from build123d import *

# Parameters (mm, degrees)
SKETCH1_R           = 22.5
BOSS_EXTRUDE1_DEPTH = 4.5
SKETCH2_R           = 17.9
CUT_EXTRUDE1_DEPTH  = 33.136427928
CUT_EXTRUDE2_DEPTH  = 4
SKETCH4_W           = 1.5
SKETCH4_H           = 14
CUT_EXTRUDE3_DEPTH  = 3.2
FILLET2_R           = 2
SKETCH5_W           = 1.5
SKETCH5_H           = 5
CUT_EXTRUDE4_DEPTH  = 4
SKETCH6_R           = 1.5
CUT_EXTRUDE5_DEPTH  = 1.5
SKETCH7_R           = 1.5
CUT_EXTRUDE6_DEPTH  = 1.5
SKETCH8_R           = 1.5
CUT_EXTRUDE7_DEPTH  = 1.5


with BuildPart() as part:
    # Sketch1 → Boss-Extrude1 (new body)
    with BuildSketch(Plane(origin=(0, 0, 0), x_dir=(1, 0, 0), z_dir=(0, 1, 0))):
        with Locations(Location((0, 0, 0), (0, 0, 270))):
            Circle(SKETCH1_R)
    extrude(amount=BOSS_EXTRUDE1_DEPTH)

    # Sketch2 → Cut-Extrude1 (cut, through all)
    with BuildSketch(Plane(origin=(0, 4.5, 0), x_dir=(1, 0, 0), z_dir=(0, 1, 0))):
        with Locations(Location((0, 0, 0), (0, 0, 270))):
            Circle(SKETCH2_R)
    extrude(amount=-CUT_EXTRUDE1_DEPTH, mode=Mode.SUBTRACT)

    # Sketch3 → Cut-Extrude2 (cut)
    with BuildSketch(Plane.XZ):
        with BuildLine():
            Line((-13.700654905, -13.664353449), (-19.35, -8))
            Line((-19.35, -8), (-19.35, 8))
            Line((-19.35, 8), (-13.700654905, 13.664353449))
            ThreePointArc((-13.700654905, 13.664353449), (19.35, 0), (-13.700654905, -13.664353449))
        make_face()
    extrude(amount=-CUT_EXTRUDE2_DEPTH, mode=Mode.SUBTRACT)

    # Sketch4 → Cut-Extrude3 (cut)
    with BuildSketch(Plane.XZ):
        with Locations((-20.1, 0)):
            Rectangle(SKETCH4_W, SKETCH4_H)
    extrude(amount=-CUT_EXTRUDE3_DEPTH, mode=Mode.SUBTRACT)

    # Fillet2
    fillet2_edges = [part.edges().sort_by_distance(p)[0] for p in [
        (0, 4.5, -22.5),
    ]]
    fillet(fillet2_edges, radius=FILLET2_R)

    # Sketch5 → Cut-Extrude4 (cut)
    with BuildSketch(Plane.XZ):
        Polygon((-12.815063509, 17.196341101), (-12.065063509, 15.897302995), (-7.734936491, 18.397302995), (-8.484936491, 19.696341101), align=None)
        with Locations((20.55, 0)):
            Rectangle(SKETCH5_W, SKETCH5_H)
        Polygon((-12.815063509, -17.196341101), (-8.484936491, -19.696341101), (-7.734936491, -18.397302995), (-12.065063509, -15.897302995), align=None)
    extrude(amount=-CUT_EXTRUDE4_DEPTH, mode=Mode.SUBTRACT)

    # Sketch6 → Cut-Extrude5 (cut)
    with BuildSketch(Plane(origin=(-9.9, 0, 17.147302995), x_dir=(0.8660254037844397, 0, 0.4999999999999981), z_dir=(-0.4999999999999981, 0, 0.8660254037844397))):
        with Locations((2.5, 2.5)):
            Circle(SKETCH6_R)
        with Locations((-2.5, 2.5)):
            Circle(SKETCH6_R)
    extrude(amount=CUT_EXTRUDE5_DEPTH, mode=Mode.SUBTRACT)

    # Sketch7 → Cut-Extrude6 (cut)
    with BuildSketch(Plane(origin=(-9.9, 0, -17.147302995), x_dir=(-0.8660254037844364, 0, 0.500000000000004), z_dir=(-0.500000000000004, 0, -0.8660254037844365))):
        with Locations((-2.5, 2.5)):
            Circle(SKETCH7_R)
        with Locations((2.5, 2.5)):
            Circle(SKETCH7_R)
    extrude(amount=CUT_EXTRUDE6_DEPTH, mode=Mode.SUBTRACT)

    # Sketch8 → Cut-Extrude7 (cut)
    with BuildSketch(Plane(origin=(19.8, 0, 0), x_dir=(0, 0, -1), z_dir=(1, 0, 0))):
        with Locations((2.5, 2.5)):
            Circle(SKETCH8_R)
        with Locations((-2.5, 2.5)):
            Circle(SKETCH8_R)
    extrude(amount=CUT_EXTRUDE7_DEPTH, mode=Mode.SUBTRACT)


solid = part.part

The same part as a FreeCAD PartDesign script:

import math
import FreeCAD as App
import Part
import Sketcher
Q = App.Units.Quantity


def edges_at(feature, points):
    """Names of the edges that pass closest to the given points."""
    edges = feature.Shape.Edges
    near = lambda p: min(range(len(edges)), key=lambda i: edges[i].distToShape(Part.Vertex(*p))[0])
    return sorted({f"Edge{near(p) + 1}" for p in points})


def add_polygon(sketch, points):
    """Adds a closed chain of lines whose ends are joined by coincident constraints."""
    first, n = sketch.GeometryCount, len(points)
    for a, b in zip(points, points[1:] + points[:1]):
        sketch.addGeometry(Part.LineSegment(App.Vector(*a, 0), App.Vector(*b, 0)), False)
    for i in range(n):
        sketch.addConstraint(Sketcher.Constraint("Coincident", first + i, 2, first + (i + 1) % n, 1))

doc = App.newDocument("Part")
body = doc.addObject("PartDesign::Body", "Body")

# Sketch on XZ plane
sketch1 = body.newObject("Sketcher::SketchObject", "Sketch")
sketch1.AttachmentSupport = (doc.getObject("XZ_Plane"), [""])
sketch1.MapMode = "FlatFace"
sketch1.addGeometry(Part.Circle(App.Vector(0, 0, 0), App.Vector(0, 0, 1), 22), False)
sketch1.addConstraint([
    Sketcher.Constraint("Coincident", 0, 3, -1, 1),
    Sketcher.Constraint("Diameter", 0, Q("45 mm")),
])
pad1 = body.newObject("PartDesign::Pad", "Pad")
pad1.Profile = sketch1
pad1.Length = 4.5
pad1.Reversed = True

# Sketch on XZ plane
sketch2 = body.newObject("Sketcher::SketchObject", "Sketch001")
sketch2.AttachmentSupport = (doc.getObject("XZ_Plane"), [""])
sketch2.MapMode = "FlatFace"
sketch2.AttachmentOffset = App.Placement(App.Vector(0, 0, -4.5), App.Rotation())
sketch2.addGeometry(Part.Circle(App.Vector(0, 0, 0), App.Vector(0, 0, 1), 18), False)
sketch2.addConstraint([
    Sketcher.Constraint("Coincident", 0, 3, -1, 1),
    Sketcher.Constraint("Diameter", 0, Q("35.8 mm")),
])
pocket1 = body.newObject("PartDesign::Pocket", "Pocket")
pocket1.Profile = sketch2
pocket1.Type = "ThroughAll"
pocket1.Reversed = True

# Sketch on XZ plane
sketch3 = body.newObject("Sketcher::SketchObject", "Sketch002")
sketch3.AttachmentSupport = (doc.getObject("XZ_Plane"), [""])
sketch3.MapMode = "FlatFace"
sketch3.addGeometry([
    Part.LineSegment(App.Vector(-19, -8, 0), App.Vector(-14, -14, 0)),
    Part.ArcOfCircle(Part.Circle(App.Vector(0, 0, 0), App.Vector(0, 0, 1), 19), math.radians(-135), math.radians(135)),
    Part.LineSegment(App.Vector(-14, 14, 0), App.Vector(-19, 8, 0)),
    Part.LineSegment(App.Vector(-19, 8, 0), App.Vector(-19, -8, 0)),
], False)
sketch3.addConstraint([
    Sketcher.Constraint("Tangent", 0, 2, 1, 1),
    Sketcher.Constraint("Tangent", 1, 2, 2, 1),
    Sketcher.Constraint("Coincident", 2, 2, 3, 1),
    Sketcher.Constraint("Coincident", 3, 2, 0, 1),
    Sketcher.Constraint("Vertical", 3),
    Sketcher.Constraint("Coincident", 1, 3, -1, 1),
    Sketcher.Constraint("Vertical", 0, 2, 1, 2),
    Sketcher.Constraint("DistanceY", 3, 2, 3, 1, Q("16 mm")),
    Sketcher.Constraint("Radius", 1, Q("19.35 mm")),
    Sketcher.Constraint("Distance", 0, Q("8 mm")),
])
pocket2 = body.newObject("PartDesign::Pocket", "Pocket001")
pocket2.Profile = sketch3
pocket2.Length = 4

# Sketch on XZ plane
sketch4 = body.newObject("Sketcher::SketchObject", "Sketch003")
sketch4.AttachmentSupport = (doc.getObject("XZ_Plane"), [""])
sketch4.MapMode = "FlatFace"
add_polygon(sketch4, [(-20.9, 7), (-20.9, -7), (-19.4, -7), (-19.4, 7)])  # lines 0-3
sketch4.addConstraint([
    Sketcher.Constraint("Vertical", 0),
    Sketcher.Constraint("Horizontal", 1),
    Sketcher.Constraint("Vertical", 2),
    Sketcher.Constraint("Horizontal", 3),
    Sketcher.Constraint("DistanceY", 0, 2, 0, 1, Q("14 mm")),
    Sketcher.Constraint("DistanceX", 1, 1, 1, 2, Q("1.5 mm")),
    Sketcher.Constraint("DistanceY", 0, 2, -1, 1, Q("7 mm")),
    Sketcher.Constraint("DistanceX", 0, 2, -1, 1, Q("20.85 mm")),
])
pocket3 = body.newObject("PartDesign::Pocket", "Pocket002")
pocket3.Profile = sketch4
pocket3.Length = 3.2
doc.recompute()

fillet = body.newObject("PartDesign::Fillet", "Fillet")
fillet.Base = (pocket3, edges_at(pocket3, [(0, 4.5, -22.5)]))
fillet.Radius = 2

# Sketch on XZ plane
sketch5 = body.newObject("Sketcher::SketchObject", "Sketch004")
sketch5.AttachmentSupport = (doc.getObject("XZ_Plane"), [""])
sketch5.MapMode = "FlatFace"
add_polygon(sketch5, [(-12.8, 17.2), (-12.1, 15.9), (-7.7, 18.4), (-8.5, 19.7)])  # lines 0-3
add_polygon(sketch5, [(19.8, 2.5), (19.8, -2.5), (21.3, -2.5), (21.3, 2.5)])  # lines 4-7
add_polygon(sketch5, [(-12.8, -17.2), (-8.5, -19.7), (-7.7, -18.4), (-12.1, -15.9)])  # lines 8-11
sketch5.addConstraint([
    Sketcher.Constraint("Vertical", 4),
    Sketcher.Constraint("Horizontal", 5),
    Sketcher.Constraint("Vertical", 6),
    Sketcher.Constraint("Horizontal", 7),
    Sketcher.Constraint("Symmetric", 2, 2, 8, 2, -1),
    Sketcher.Constraint("Symmetric", 1, 2, 9, 2, -1),
    Sketcher.Constraint("Symmetric", 0, 2, 10, 2, -1),
    Sketcher.Constraint("Symmetric", 3, 2, 11, 2, -1),
    Sketcher.Constraint("Perpendicular", 0, 1),
    Sketcher.Constraint("Perpendicular", 1, 2),
    Sketcher.Constraint("Perpendicular", 2, 3),
    Sketcher.Constraint("DistanceY", 4, 2, 4, 1, Q("5 mm")),
    Sketcher.Constraint("Angle", 0, Q("-60 deg")),
    Sketcher.Constraint("Distance", 1, Q("5 mm")),
    Sketcher.Constraint("DistanceX", 5, 1, 5, 2, Q("1.5 mm")),
    Sketcher.Constraint("Distance", 0, Q("1.5 mm")),
    Sketcher.Constraint("DistanceX", -1, 1, 4, 2, Q("19.8 mm")),
    Sketcher.Constraint("DistanceY", 4, 2, -1, 1, Q("2.5 mm")),
    Sketcher.Constraint("DistanceY", -1, 1, 2, 2, Q("19.696341 mm")),
    Sketcher.Constraint("DistanceX", 0, 2, -1, 1, Q("12.065064 mm")),
])
pocket4 = body.newObject("PartDesign::Pocket", "Pocket003")
pocket4.Profile = sketch5
pocket4.Length = 4

# Sketch on an angled plane
sketch6 = body.newObject("Sketcher::SketchObject", "Sketch005")
sketch6.Placement = App.Placement(App.Vector(-9.9, 0, 17.147303), App.Rotation(App.Vector(0.866025404, 0, 0.5), App.Vector(0, 1, 0), App.Vector(-0.5, 0, 0.866025404), "ZXY"))
sketch6.addGeometry([
    Part.Circle(App.Vector(2.5, 2.5, 0), App.Vector(0, 0, 1), 1.5),
    Part.Circle(App.Vector(-2.5, 2.5, 0), App.Vector(0, 0, 1), 1.5),
], False)
sketch6.addConstraint([
    Sketcher.Constraint("Equal", 0, 1),
    Sketcher.Constraint("Symmetric", 0, 3, 1, 3, -2),
    Sketcher.Constraint("Diameter", 0, Q("3 mm")),
    Sketcher.Constraint("DistanceX", 1, 3, 0, 3, Q("5 mm")),
    Sketcher.Constraint("DistanceY", -1, 1, 0, 3, Q("2.5 mm")),
])
pocket5 = body.newObject("PartDesign::Pocket", "Pocket004")
pocket5.Profile = sketch6
pocket5.Length = 1.5
pocket5.Reversed = True

# Sketch on an angled plane
sketch7 = body.newObject("Sketcher::SketchObject", "Sketch006")
sketch7.Placement = App.Placement(App.Vector(-9.9, 0, -17.147303), App.Rotation(App.Vector(-0.866025404, 0, 0.5), App.Vector(0, 1, 0), App.Vector(-0.5, 0, -0.866025404), "ZXY"))
sketch7.addGeometry([
    Part.Circle(App.Vector(-2.5, 2.5, 0), App.Vector(0, 0, 1), 1.5),
    Part.Circle(App.Vector(2.5, 2.5, 0), App.Vector(0, 0, 1), 1.5),
], False)
sketch7.addConstraint([
    Sketcher.Constraint("Equal", 0, 1),
    Sketcher.Constraint("Symmetric", 0, 3, 1, 3, -2),
    Sketcher.Constraint("Diameter", 0, Q("3 mm")),
    Sketcher.Constraint("DistanceX", 0, 3, 1, 3, Q("5 mm")),
    Sketcher.Constraint("DistanceY", -1, 1, 0, 3, Q("2.5 mm")),
])
pocket6 = body.newObject("PartDesign::Pocket", "Pocket005")
pocket6.Profile = sketch7
pocket6.Length = 1.5
pocket6.Reversed = True

# Sketch on YZ plane
sketch8 = body.newObject("Sketcher::SketchObject", "Sketch007")
sketch8.AttachmentSupport = (doc.getObject("YZ_Plane"), [""])
sketch8.MapMode = "FlatFace"
sketch8.AttachmentOffset = App.Placement(App.Vector(0, 0, 19.8), App.Rotation())
sketch8.addGeometry([
    Part.Circle(App.Vector(2.5, -2.5, 0), App.Vector(0, 0, 1), 1.5),
    Part.Circle(App.Vector(2.5, 2.5, 0), App.Vector(0, 0, 1), 1.5),
], False)
sketch8.addConstraint([
    Sketcher.Constraint("Equal", 0, 1),
    Sketcher.Constraint("Symmetric", 0, 3, 1, 3, -1),
    Sketcher.Constraint("Diameter", 0, Q("3 mm")),
    Sketcher.Constraint("DistanceY", 0, 3, 1, 3, Q("5 mm")),
    Sketcher.Constraint("DistanceX", -1, 1, 0, 3, Q("2.5 mm")),
])
pocket7 = body.newObject("PartDesign::Pocket", "Pocket006")
pocket7.Profile = sketch8
pocket7.Length = 1.5
pocket7.Reversed = True

doc.recompute()
